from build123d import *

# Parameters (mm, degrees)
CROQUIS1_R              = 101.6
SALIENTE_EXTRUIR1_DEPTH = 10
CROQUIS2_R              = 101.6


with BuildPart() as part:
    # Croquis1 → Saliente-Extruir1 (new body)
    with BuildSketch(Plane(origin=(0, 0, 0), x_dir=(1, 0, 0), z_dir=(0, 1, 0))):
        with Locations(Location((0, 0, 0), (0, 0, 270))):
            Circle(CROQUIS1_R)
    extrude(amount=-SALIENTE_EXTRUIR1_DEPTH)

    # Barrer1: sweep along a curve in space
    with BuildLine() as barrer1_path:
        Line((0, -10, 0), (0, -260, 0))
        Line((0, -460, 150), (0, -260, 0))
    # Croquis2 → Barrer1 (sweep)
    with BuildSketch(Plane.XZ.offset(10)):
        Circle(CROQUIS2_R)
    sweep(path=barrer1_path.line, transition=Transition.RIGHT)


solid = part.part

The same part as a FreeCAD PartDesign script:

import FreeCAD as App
import Part
import Sketcher

V = App.Vector
Q = App.Units.Quantity

doc = App.newDocument("Part")
params = doc.addObject("Spreadsheet::Sheet", "Params")
for row, (alias, value) in enumerate([
    ("sketch1_diameter", "203.2 mm"),
    ("pad1_length", "10 mm"),
    ("sketch2_diameter", "203.2 mm"),
    ("sketch3_width", "250 mm"),
    ("sketch3_length", "250 mm"),
], start=1):
    params.set(f"A{row}", alias)
    params.set(f"B{row}", "=" + value)
    params.setAlias(f"B{row}", alias)

body = doc.addObject("PartDesign::Body", "Body")

# Sketch on XZ plane
sketch1 = body.newObject("Sketcher::SketchObject", "Sketch")
sketch1.AttachmentSupport = (doc.getObject("XZ_Plane"), [""])
sketch1.MapMode = "FlatFace"
sketch1.addGeometry(Part.Circle(V(0, 0, 0), V(0, 0, 1), 102), False)
sketch1.addConstraint([
    Sketcher.Constraint("Coincident", 0, 3, -1, 1),
    Sketcher.Constraint("Diameter", 0, Q("203.2 mm")),
])
sketch1.setExpression("Constraints[1]", "Params.sketch1_diameter")
pad1 = body.newObject("PartDesign::Pad", "Pad")
pad1.Profile = sketch1
pad1.setExpression("Length", "Params.pad1_length")

# Sketch on XZ plane
sketch2 = body.newObject("Sketcher::SketchObject", "Sketch001")
sketch2.AttachmentSupport = (doc.getObject("XZ_Plane"), [""])
sketch2.MapMode = "FlatFace"
sketch2.AttachmentOffset = App.Placement(V(0, 0, 10), App.Rotation())
sketch2.addGeometry(Part.Circle(V(0, 0, 0), V(0, 0, 1), 102), False)
sketch2.addConstraint([
    Sketcher.Constraint("Coincident", 0, 3, -1, 1),
    Sketcher.Constraint("Diameter", 0, Q("203.2 mm")),
])
sketch2.setExpression("Constraints[1]", "Params.sketch2_diameter")

# Sketch on YZ plane
sketch3 = body.newObject("Sketcher::SketchObject", "Sketch002")
sketch3.AttachmentSupport = (doc.getObject("YZ_Plane"), [""])
sketch3.MapMode = "FlatFace"
sketch3.addGeometry([
    Part.LineSegment(V(-10, 0, 0), V(-260, 0, 0)),
    Part.LineSegment(V(-260, 0, 0), V(-460, 150, 0)),
], False)
sketch3.addConstraint([
    Sketcher.Constraint("Coincident", 0, 2, 1, 1),
    Sketcher.Constraint("Horizontal", 0),
    Sketcher.Constraint("PointOnObject", 0, 1, -1),
    Sketcher.Constraint("DistanceX", 0, 2, 0, 1, Q("250 mm")),
    Sketcher.Constraint("Distance", 1, Q("250 mm")),
    Sketcher.Constraint("DistanceX", 0, 1, -1, 1, Q("10 mm")),
    Sketcher.Constraint("DistanceX", 1, 2, -1, 1, Q("460 mm")),
])
sketch3.setExpression("Constraints[3]", "Params.sketch3_width")
sketch3.setExpression("Constraints[4]", "Params.sketch3_length")
doc.recompute()

additivepipe = body.newObject("PartDesign::AdditivePipe", "AdditivePipe")
additivepipe.Profile = sketch2
additivepipe.Spine = (sketch3, ["Edge1", "Edge2"])
additivepipe.Transition = "Right corner"

doc.recompute()
